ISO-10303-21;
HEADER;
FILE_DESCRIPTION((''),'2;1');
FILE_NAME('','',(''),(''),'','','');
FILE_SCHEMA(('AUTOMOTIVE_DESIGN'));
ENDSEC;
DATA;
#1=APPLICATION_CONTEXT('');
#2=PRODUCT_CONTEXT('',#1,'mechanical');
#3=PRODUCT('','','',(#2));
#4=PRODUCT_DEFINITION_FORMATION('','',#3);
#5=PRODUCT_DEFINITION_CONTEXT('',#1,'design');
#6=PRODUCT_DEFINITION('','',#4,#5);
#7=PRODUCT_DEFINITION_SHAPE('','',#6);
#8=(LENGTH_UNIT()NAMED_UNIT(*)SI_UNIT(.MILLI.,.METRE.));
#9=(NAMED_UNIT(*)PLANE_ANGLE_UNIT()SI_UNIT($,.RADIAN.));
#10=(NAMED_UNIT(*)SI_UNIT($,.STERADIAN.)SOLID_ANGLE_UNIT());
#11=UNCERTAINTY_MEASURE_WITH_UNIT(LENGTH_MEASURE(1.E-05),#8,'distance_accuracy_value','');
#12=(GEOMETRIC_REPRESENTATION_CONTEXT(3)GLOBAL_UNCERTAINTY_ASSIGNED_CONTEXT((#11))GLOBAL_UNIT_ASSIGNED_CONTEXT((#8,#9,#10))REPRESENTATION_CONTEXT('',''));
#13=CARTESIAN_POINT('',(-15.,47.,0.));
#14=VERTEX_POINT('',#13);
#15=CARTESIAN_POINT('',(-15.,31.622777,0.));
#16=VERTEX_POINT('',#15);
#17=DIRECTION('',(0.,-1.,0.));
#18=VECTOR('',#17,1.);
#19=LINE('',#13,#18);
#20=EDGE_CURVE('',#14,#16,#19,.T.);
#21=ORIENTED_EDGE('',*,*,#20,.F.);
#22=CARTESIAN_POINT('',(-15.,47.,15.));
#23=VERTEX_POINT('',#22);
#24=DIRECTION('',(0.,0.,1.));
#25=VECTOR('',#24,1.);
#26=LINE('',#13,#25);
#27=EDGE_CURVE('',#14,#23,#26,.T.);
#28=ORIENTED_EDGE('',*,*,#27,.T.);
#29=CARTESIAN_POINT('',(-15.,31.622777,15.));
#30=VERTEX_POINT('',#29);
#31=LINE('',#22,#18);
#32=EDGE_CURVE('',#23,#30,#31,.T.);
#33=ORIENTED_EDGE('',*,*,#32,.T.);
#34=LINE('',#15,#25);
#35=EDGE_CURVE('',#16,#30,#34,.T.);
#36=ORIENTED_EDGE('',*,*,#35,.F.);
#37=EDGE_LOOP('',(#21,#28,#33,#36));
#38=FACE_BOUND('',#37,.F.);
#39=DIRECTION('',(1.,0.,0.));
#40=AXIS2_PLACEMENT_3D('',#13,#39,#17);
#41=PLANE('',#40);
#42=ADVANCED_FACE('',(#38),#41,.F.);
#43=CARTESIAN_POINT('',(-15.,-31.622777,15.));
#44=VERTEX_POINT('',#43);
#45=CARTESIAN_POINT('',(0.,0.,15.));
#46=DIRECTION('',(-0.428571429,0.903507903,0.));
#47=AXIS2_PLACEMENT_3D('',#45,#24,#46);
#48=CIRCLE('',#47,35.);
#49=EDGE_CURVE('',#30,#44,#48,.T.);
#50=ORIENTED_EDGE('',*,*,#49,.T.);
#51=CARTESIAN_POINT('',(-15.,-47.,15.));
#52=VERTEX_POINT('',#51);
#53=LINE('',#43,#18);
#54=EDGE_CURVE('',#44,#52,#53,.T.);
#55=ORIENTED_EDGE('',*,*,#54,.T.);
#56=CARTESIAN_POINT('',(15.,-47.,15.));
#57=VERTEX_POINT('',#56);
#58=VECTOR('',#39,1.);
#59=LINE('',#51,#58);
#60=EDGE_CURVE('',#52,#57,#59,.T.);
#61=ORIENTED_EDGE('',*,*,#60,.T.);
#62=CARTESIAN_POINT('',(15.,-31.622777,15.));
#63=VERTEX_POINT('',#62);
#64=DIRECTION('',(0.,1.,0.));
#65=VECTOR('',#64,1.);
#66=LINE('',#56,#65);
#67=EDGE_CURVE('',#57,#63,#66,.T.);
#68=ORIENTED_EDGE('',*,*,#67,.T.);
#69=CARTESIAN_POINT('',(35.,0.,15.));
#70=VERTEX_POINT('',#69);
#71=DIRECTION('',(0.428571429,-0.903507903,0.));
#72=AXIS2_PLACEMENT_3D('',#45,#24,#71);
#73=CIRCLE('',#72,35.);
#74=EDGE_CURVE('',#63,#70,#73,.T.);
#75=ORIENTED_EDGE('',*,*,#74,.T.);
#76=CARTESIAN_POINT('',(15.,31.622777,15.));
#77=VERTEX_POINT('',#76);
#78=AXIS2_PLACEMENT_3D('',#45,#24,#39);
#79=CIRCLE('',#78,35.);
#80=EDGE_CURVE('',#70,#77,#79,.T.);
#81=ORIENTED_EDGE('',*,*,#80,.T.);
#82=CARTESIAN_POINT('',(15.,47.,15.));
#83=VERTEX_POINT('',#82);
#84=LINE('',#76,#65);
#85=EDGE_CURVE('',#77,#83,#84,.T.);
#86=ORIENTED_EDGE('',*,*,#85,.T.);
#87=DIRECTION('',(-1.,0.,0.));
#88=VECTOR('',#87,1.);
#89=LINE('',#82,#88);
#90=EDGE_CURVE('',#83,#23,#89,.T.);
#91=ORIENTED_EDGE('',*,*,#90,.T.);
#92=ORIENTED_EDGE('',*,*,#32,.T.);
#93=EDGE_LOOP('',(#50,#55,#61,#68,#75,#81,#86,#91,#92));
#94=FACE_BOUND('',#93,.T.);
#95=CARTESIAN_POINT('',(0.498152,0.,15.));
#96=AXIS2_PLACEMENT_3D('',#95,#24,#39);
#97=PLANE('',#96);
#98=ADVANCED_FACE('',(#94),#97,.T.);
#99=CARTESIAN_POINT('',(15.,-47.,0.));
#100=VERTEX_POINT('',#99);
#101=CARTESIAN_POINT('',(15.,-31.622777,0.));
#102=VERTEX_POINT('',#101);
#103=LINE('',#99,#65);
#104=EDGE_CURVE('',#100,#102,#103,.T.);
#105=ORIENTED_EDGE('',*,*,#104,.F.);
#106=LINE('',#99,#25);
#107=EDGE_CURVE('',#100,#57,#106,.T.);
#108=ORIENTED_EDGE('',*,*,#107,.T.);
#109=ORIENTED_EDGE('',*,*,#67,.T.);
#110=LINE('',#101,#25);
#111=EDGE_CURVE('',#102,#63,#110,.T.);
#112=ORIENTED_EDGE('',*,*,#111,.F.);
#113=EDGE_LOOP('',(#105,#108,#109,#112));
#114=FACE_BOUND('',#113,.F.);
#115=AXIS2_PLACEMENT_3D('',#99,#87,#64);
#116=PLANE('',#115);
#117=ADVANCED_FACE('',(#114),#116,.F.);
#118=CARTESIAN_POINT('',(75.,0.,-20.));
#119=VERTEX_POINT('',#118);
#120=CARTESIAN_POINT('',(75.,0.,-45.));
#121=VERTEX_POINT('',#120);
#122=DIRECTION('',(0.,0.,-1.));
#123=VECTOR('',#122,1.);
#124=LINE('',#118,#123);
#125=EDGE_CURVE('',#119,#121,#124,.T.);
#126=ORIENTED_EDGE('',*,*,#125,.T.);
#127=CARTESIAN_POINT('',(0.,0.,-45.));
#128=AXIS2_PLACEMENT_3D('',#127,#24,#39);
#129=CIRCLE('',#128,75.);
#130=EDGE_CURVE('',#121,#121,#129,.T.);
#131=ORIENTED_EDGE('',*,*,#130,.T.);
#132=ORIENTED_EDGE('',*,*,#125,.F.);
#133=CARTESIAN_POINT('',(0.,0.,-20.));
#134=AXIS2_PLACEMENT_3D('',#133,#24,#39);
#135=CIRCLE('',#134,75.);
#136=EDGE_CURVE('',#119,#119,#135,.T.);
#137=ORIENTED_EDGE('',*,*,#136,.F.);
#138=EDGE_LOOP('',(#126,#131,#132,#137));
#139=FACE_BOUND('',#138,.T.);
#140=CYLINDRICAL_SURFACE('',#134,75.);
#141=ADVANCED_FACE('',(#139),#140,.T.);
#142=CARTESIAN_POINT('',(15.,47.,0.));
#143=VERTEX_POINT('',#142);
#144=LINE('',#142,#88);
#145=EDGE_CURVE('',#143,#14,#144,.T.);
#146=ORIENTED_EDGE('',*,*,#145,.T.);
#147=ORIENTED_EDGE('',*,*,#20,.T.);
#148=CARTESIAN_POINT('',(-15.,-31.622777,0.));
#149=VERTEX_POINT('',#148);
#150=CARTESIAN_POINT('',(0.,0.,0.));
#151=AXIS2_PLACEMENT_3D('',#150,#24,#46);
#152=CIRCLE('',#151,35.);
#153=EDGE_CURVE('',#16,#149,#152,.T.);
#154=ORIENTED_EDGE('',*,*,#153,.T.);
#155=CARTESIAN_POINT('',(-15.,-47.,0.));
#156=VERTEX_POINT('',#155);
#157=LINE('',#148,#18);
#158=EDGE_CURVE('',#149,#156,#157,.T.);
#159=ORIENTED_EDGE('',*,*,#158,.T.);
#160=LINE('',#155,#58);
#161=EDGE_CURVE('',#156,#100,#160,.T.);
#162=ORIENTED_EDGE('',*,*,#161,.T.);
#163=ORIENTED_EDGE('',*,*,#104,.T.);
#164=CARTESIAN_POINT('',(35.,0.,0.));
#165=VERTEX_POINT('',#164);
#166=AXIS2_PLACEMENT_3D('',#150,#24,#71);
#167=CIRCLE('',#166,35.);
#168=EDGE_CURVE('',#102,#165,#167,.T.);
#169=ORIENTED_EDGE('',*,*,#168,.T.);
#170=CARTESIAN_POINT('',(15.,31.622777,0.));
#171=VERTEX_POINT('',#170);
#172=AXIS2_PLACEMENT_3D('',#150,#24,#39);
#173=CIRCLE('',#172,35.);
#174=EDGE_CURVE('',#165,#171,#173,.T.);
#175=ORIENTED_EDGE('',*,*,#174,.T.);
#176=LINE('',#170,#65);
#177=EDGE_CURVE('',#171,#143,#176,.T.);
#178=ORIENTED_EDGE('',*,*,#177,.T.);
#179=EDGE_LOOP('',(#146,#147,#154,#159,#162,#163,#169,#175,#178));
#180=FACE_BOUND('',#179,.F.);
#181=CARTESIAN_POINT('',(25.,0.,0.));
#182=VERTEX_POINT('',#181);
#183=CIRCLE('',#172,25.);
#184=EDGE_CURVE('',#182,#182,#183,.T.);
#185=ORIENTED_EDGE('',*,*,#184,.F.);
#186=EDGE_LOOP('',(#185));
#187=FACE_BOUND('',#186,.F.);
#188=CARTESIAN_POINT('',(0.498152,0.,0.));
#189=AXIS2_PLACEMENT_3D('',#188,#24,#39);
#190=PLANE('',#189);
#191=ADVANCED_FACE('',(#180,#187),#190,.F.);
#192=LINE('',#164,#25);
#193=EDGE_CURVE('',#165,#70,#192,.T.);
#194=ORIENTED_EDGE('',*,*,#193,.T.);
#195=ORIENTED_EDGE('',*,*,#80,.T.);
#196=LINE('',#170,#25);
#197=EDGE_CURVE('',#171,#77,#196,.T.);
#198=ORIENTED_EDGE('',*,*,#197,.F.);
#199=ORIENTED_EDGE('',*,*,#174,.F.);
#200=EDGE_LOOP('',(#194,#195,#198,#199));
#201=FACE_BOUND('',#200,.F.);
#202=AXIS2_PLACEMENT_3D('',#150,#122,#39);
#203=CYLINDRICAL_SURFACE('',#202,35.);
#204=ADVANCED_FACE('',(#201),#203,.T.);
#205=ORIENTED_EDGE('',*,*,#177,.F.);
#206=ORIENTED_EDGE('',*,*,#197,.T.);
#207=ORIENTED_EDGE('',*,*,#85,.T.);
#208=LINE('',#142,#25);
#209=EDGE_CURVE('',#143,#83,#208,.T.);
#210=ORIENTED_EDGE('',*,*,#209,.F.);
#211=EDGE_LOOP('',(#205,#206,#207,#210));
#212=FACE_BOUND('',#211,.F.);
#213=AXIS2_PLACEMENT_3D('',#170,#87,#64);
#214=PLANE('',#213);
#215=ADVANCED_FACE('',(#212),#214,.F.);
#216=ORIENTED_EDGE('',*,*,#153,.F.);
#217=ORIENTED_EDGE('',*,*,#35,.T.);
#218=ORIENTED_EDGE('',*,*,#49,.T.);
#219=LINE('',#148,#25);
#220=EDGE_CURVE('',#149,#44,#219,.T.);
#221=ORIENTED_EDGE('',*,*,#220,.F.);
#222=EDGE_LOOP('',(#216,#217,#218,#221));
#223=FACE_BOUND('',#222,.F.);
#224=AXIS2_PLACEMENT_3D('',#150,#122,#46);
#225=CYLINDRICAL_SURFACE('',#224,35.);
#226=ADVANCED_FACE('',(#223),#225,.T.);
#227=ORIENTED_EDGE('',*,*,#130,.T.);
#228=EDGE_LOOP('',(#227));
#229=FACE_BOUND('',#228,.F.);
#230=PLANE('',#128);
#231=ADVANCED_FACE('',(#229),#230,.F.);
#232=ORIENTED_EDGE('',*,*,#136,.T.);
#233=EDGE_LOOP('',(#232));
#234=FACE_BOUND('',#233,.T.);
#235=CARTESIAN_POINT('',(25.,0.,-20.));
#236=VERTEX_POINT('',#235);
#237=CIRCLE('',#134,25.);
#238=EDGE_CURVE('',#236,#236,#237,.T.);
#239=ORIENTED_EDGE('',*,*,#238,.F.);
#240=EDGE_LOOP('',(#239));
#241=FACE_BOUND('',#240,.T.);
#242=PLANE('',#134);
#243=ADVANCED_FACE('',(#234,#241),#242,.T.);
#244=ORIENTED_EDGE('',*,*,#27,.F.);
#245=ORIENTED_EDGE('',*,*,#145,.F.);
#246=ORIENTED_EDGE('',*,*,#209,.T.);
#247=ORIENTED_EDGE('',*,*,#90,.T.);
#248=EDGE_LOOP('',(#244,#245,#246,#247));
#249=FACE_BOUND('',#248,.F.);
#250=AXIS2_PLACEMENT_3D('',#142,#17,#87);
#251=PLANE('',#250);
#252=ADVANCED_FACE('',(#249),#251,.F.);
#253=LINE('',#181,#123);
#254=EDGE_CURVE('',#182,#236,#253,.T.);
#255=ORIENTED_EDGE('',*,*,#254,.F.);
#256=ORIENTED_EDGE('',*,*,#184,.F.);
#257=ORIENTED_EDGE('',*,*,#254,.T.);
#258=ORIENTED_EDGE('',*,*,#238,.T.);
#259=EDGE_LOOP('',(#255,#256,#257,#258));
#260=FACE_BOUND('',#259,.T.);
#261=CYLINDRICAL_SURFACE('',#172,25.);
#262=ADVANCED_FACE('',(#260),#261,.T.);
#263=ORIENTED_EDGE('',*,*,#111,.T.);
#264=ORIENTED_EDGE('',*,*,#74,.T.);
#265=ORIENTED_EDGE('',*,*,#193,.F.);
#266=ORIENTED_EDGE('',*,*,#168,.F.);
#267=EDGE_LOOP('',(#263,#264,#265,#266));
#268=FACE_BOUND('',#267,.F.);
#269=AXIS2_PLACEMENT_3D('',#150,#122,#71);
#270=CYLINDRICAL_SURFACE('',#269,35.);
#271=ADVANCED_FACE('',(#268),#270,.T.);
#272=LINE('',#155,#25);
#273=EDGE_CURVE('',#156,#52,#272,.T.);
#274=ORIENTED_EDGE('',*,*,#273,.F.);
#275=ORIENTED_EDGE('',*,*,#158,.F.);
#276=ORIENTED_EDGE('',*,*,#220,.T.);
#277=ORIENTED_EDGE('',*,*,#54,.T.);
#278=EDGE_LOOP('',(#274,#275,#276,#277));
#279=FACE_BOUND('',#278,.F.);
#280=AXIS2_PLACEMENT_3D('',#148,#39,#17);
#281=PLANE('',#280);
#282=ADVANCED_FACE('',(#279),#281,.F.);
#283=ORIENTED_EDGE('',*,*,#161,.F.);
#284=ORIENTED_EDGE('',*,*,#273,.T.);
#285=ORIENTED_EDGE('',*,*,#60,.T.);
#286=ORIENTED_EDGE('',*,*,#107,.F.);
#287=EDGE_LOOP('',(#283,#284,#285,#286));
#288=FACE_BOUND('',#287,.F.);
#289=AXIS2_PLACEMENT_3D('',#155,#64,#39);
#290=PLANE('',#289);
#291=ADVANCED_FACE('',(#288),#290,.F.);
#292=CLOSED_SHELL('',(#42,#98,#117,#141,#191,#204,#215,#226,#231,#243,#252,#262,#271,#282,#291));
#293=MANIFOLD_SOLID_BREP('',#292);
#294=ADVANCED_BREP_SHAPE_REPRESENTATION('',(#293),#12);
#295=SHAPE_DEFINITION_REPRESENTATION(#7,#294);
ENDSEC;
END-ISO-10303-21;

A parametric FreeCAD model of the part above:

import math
import FreeCAD as App
import Part
import Sketcher
Q = App.Units.Quantity

doc = App.newDocument("Part")
body = doc.addObject("PartDesign::Body", "Body")

# Sketch on XY plane
sketch1 = body.newObject("Sketcher::SketchObject", "Sketch")
sketch1.AttachmentSupport = (doc.getObject("XY_Plane"), [""])
sketch1.MapMode = "FlatFace"
sketch1.addGeometry(Part.ArcOfCircle(Part.Circle(App.Vector(0, 0, 0), App.Vector(0, 0, 1), 35), math.radians(-65), math.radians(0)), False)
sketch1.addGeometry(Part.ArcOfCircle(Part.Circle(App.Vector(0, 0, 0), App.Vector(0, 0, 1), 35), math.radians(0), math.radians(65)), False)
sketch1.addGeometry(Part.LineSegment(App.Vector(15, 32, 0), App.Vector(15, 47, 0)), False)
sketch1.addGeometry(Part.LineSegment(App.Vector(15, 47, 0), App.Vector(-15, 47, 0)), False)
sketch1.addGeometry(Part.LineSegment(App.Vector(-15, 47, 0), App.Vector(-15, 32, 0)), False)
sketch1.addGeometry(Part.ArcOfCircle(Part.Circle(App.Vector(0, 0, 0), App.Vector(0, 0, 1), 35), math.radians(115), math.radians(245)), False)
sketch1.addGeometry(Part.LineSegment(App.Vector(-15, -32, 0), App.Vector(-15, -47, 0)), False)
sketch1.addGeometry(Part.LineSegment(App.Vector(-15, -47, 0), App.Vector(15, -47, 0)), False)
sketch1.addGeometry(Part.LineSegment(App.Vector(15, -47, 0), App.Vector(15, -32, 0)), False)
sketch1.addConstraint(Sketcher.Constraint("Tangent", 0, 2, 1, 1))
sketch1.addConstraint(Sketcher.Constraint("Coincident", 1, 2, 2, 1))
sketch1.addConstraint(Sketcher.Constraint("Coincident", 2, 2, 3, 1))
sketch1.addConstraint(Sketcher.Constraint("Coincident", 3, 2, 4, 1))
sketch1.addConstraint(Sketcher.Constraint("Coincident", 4, 2, 5, 1))
sketch1.addConstraint(Sketcher.Constraint("Coincident", 5, 2, 6, 1))
sketch1.addConstraint(Sketcher.Constraint("Coincident", 6, 2, 7, 1))
sketch1.addConstraint(Sketcher.Constraint("Coincident", 7, 2, 8, 1))
sketch1.addConstraint(Sketcher.Constraint("Coincident", 8, 2, 0, 1))
sketch1.addConstraint(Sketcher.Constraint("Vertical", 2))
sketch1.addConstraint(Sketcher.Constraint("Horizontal", 3))
sketch1.addConstraint(Sketcher.Constraint("Vertical", 4))
sketch1.addConstraint(Sketcher.Constraint("Vertical", 6))
sketch1.addConstraint(Sketcher.Constraint("Horizontal", 7))
sketch1.addConstraint(Sketcher.Constraint("Vertical", 8))
sketch1.addConstraint(Sketcher.Constraint("Coincident", 0, 3, -1, 1))
sketch1.addConstraint(Sketcher.Constraint("Coincident", 5, 3, -1, 1))
sketch1.addConstraint(Sketcher.Constraint("Equal", 0, 1))
sketch1.addConstraint(Sketcher.Constraint("Equal", 1, 5))
sketch1.addConstraint(Sketcher.Constraint("Symmetric", 2, 2, 6, 2, -1, 1))
sketch1.addConstraint(Sketcher.Constraint("PointOnObject", 0, 2, -1))
sketch1.addConstraint(Sketcher.Constraint("Horizontal", 1, 2, 4, 2))
sketch1.addConstraint(Sketcher.Constraint("Horizontal", 5, 2, 8, 2))
sketch1.addConstraint(Sketcher.Constraint("Radius", 0, Q("35 mm")))
sketch1.addConstraint(Sketcher.Constraint("DistanceX", 3, 2, 3, 1, Q("30 mm")))
sketch1.addConstraint(Sketcher.Constraint("DistanceY", -1, 1, 2, 2, Q("47 mm")))
pad1 = body.newObject("PartDesign::Pad", "Pad")
pad1.Profile = sketch1
pad1.Length = 15

# Sketch on XY plane
sketch2 = body.newObject("Sketcher::SketchObject", "Sketch001")
sketch2.AttachmentSupport = (doc.getObject("XY_Plane"), [""])
sketch2.MapMode = "FlatFace"
sketch2.addGeometry(Part.Circle(App.Vector(0, 0, 0), App.Vector(0, 0, 1), 25), False)
sketch2.addConstraint(Sketcher.Constraint("Coincident", 0, 3, -1, 1))
sketch2.addConstraint(Sketcher.Constraint("Diameter", 0, Q("50 mm")))
pad2 = body.newObject("PartDesign::Pad", "Pad001")
pad2.Profile = sketch2
pad2.Length = 20
pad2.Reversed = True

# Sketch on XY plane
sketch3 = body.newObject("Sketcher::SketchObject", "Sketch002")
sketch3.AttachmentSupport = (doc.getObject("XY_Plane"), [""])
sketch3.MapMode = "FlatFace"
sketch3.AttachmentOffset = App.Placement(App.Vector(0, 0, -20), App.Rotation())
sketch3.addGeometry(Part.Circle(App.Vector(0, 0, 0), App.Vector(0, 0, 1), 75), False)
sketch3.addConstraint(Sketcher.Constraint("Coincident", 0, 3, -1, 1))
sketch3.addConstraint(Sketcher.Constraint("Diameter", 0, Q("150 mm")))
pad3 = body.newObject("PartDesign::Pad", "Pad002")
pad3.Profile = sketch3
pad3.Length = 25
pad3.Reversed = True

doc.recompute()
